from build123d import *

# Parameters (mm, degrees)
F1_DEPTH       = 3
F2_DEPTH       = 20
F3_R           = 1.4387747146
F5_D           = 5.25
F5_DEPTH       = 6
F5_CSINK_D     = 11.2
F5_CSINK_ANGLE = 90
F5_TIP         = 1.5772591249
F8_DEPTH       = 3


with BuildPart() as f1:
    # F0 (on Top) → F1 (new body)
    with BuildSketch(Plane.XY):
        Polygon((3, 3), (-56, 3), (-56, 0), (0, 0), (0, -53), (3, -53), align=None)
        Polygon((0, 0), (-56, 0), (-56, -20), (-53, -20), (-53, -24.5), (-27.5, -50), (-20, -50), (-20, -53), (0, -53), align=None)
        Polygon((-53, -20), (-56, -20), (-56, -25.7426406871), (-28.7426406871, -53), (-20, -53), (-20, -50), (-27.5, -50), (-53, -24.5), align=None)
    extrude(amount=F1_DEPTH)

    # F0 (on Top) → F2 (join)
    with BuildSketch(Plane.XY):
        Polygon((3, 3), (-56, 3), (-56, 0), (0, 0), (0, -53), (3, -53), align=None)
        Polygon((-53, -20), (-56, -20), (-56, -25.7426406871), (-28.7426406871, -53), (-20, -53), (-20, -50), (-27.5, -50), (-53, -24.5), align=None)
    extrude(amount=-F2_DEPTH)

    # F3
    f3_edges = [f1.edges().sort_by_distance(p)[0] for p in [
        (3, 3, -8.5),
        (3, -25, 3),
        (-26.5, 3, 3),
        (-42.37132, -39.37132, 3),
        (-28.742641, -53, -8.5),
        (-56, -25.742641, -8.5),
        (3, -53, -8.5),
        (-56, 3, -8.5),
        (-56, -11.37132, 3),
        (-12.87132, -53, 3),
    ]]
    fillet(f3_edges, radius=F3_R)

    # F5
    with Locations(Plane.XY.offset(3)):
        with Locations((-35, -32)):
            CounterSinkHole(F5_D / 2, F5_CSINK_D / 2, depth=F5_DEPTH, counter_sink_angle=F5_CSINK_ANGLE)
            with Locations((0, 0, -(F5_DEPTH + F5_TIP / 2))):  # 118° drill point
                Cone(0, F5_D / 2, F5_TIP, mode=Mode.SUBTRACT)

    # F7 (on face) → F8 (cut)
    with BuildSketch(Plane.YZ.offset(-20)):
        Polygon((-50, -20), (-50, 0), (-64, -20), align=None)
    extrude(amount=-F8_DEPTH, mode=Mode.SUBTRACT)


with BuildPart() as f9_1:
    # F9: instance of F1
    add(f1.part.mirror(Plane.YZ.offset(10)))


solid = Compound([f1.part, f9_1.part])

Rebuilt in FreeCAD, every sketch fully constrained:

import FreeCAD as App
import Part
import Sketcher
Q = App.Units.Quantity


def edges_at(feature, points):
    """Names of the edges that pass closest to the given points."""
    edges = feature.Shape.Edges
    near = lambda p: min(range(len(edges)), key=lambda i: edges[i].distToShape(Part.Vertex(*p))[0])
    return sorted({f"Edge{near(p) + 1}" for p in points})

doc = App.newDocument("Part")
body = doc.addObject("PartDesign::Body", "Body")

# Sketch on XY plane
sketch1 = body.newObject("Sketcher::SketchObject", "Sketch")
sketch1.AttachmentSupport = (doc.getObject("XY_Plane"), [""])
sketch1.MapMode = "FlatFace"
sketch1.addGeometry([
    Part.LineSegment(App.Vector(3, 3, 0), App.Vector(-56, 3, 0)),  # 0
    Part.LineSegment(App.Vector(-56, 3, 0), App.Vector(-56, -26, 0)),  # 1
    Part.LineSegment(App.Vector(-56, -26, 0), App.Vector(-29, -53, 0)),  # 2
    Part.LineSegment(App.Vector(-29, -53, 0), App.Vector(3, -53, 0)),  # 3
    Part.LineSegment(App.Vector(3, -53, 0), App.Vector(3, 3, 0)),  # 4
], False)
sketch1.addConstraint([
    Sketcher.Constraint("Coincident", 0, 2, 1, 1),
    Sketcher.Constraint("Coincident", 1, 2, 2, 1),
    Sketcher.Constraint("Coincident", 2, 2, 3, 1),
    Sketcher.Constraint("Coincident", 3, 2, 4, 1),
    Sketcher.Constraint("Coincident", 4, 2, 0, 1),
    Sketcher.Constraint("Horizontal", 0),
    Sketcher.Constraint("Vertical", 1),
    Sketcher.Constraint("Horizontal", 3),
    Sketcher.Constraint("Vertical", 4),
    Sketcher.Constraint("DistanceX", 0, 2, 0, 1, Q("59 mm")),
    Sketcher.Constraint("DistanceY", 4, 1, 4, 2, Q("56 mm")),
    Sketcher.Constraint("Angle", 2, Q("-45 deg")),
    Sketcher.Constraint("DistanceX", 0, 2, -1, 1, Q("56 mm")),
    Sketcher.Constraint("DistanceY", -1, 1, 0, 2, Q("3 mm")),
    Sketcher.Constraint("DistanceX", 3, 1, 3, 2, Q("31.742641 mm")),
])
pad1 = body.newObject("PartDesign::Pad", "Pad")
pad1.Profile = sketch1
pad1.Length = 3

# Sketch on XY plane
sketch2 = body.newObject("Sketcher::SketchObject", "Sketch001")
sketch2.AttachmentSupport = (doc.getObject("XY_Plane"), [""])
sketch2.MapMode = "FlatFace"
sketch2.addGeometry([
    Part.LineSegment(App.Vector(3, 3, 0), App.Vector(-56, 3, 0)),  # 0
    Part.LineSegment(App.Vector(-56, 3, 0), App.Vector(-56, 0, 0)),  # 1
    Part.LineSegment(App.Vector(-56, 0, 0), App.Vector(0, 0, 0)),  # 2
    Part.LineSegment(App.Vector(0, 0, 0), App.Vector(0, -53, 0)),  # 3
    Part.LineSegment(App.Vector(0, -53, 0), App.Vector(3, -53, 0)),  # 4
    Part.LineSegment(App.Vector(3, -53, 0), App.Vector(3, 3, 0)),  # 5
    Part.LineSegment(App.Vector(-53, -20, 0), App.Vector(-56, -20, 0)),  # 6
    Part.LineSegment(App.Vector(-56, -20, 0), App.Vector(-56, -25.7, 0)),  # 7
    Part.LineSegment(App.Vector(-56, -25.7, 0), App.Vector(-28.7, -53, 0)),  # 8
    Part.LineSegment(App.Vector(-28.7, -53, 0), App.Vector(-20, -53, 0)),  # 9
    Part.LineSegment(App.Vector(-20, -53, 0), App.Vector(-20, -50, 0)),  # 10
    Part.LineSegment(App.Vector(-20, -50, 0), App.Vector(-27.5, -50, 0)),  # 11
    Part.LineSegment(App.Vector(-27.5, -50, 0), App.Vector(-53, -24.5, 0)),  # 12
    Part.LineSegment(App.Vector(-53, -24.5, 0), App.Vector(-53, -20, 0)),  # 13
], False)
sketch2.addConstraint([
    Sketcher.Constraint("Coincident", 0, 2, 1, 1),
    Sketcher.Constraint("Coincident", 1, 2, 2, 1),
    Sketcher.Constraint("Coincident", 2, 2, 3, 1),
    Sketcher.Constraint("Coincident", 3, 2, 4, 1),
    Sketcher.Constraint("Coincident", 4, 2, 5, 1),
    Sketcher.Constraint("Coincident", 5, 2, 0, 1),
    Sketcher.Constraint("Coincident", 6, 2, 7, 1),
    Sketcher.Constraint("Coincident", 7, 2, 8, 1),
    Sketcher.Constraint("Coincident", 8, 2, 9, 1),
    Sketcher.Constraint("Coincident", 9, 2, 10, 1),
    Sketcher.Constraint("Coincident", 10, 2, 11, 1),
    Sketcher.Constraint("Coincident", 11, 2, 12, 1),
    Sketcher.Constraint("Coincident", 12, 2, 13, 1),
    Sketcher.Constraint("Coincident", 13, 2, 6, 1),
    Sketcher.Constraint("Horizontal", 0),
    Sketcher.Constraint("Vertical", 1),
    Sketcher.Constraint("Horizontal", 2),
    Sketcher.Constraint("Vertical", 3),
    Sketcher.Constraint("Horizontal", 4),
    Sketcher.Constraint("Vertical", 5),
    Sketcher.Constraint("Horizontal", 6),
    Sketcher.Constraint("Vertical", 7),
    Sketcher.Constraint("Horizontal", 9),
    Sketcher.Constraint("Vertical", 10),
    Sketcher.Constraint("Horizontal", 11),
    Sketcher.Constraint("Vertical", 13),
    Sketcher.Constraint("Coincident", 2, 2, -1, 1),
    Sketcher.Constraint("Parallel", 8, 12),
    Sketcher.Constraint("Horizontal", 4, 2, 8, 2),
    Sketcher.Constraint("Vertical", 1, 2, 6, 2),
    Sketcher.Constraint("Equal", 4, 6),
    Sketcher.Constraint("Equal", 6, 1),
    Sketcher.Constraint("Equal", 2, 5),
    Sketcher.Constraint("Equal", 1, 10),
    Sketcher.Constraint("DistanceX", 0, 2, 0, 1, Q("59 mm")),
    Sketcher.Constraint("DistanceX", 2, 1, 2, 2, Q("56 mm")),
    Sketcher.Constraint("Angle", 8, Q("-45 deg")),
    Sketcher.Constraint("DistanceX", 11, 2, 11, 1, Q("7.5 mm")),
    Sketcher.Constraint("DistanceY", 13, 1, 13, 2, Q("4.5 mm")),
    Sketcher.Constraint("DistanceY", 6, 2, -1, 1, Q("20 mm")),
    Sketcher.Constraint("DistanceX", 9, 1, 9, 2, Q("8.742641 mm")),
])
pad2 = body.newObject("PartDesign::Pad", "Pad001")
pad2.Profile = sketch2
pad2.Length = 20
pad2.Reversed = True
doc.recompute()

fillet = body.newObject("PartDesign::Fillet", "Fillet")
fillet.Base = (pad2, edges_at(pad2, [
    (3, 3, -8.5),
    (3, -25, 3),
    (-26.5, 3, 3),
    (-42.371, -39.371, 3),
    (-28.743, -53, -8.5),
    (-56, -25.743, -8.5),
    (3, -53, -8.5),
    (-56, 3, -8.5),
    (-56, -11.371, 3),
    (-12.871, -53, 3),
]))
fillet.Radius = 1.438775

# Sketch on XY plane
sketch3 = body.newObject("Sketcher::SketchObject", "Sketch002")
sketch3.AttachmentSupport = (doc.getObject("XY_Plane"), [""])
sketch3.MapMode = "FlatFace"
sketch3.AttachmentOffset = App.Placement(App.Vector(0, 0, 3), App.Rotation())
sketch3.addGeometry(Part.Circle(App.Vector(-35, -32, 0), App.Vector(0, 0, 1), 2.6), False)
sketch3.addConstraint([
    Sketcher.Constraint("Diameter", 0, Q("5.25 mm")),
    Sketcher.Constraint("DistanceX", 0, 3, -1, 1, Q("35 mm")),
    Sketcher.Constraint("DistanceY", 0, 3, -1, 1, Q("32 mm")),
])
doc.recompute()
hole = body.newObject("PartDesign::Hole", "Hole")
hole.Profile = sketch3
hole.ThreadType = "None"
hole.Diameter = 5.25
hole.DepthType = "Dimension"
hole.Depth = 6
hole.DrillPoint = "Angled"
hole.DrillPointAngle = 118
hole.HoleCutType = "Countersink"
hole.HoleCutDiameter = 11.2
hole.HoleCutCountersinkAngle = 90

# Sketch on YZ plane
sketch4 = body.newObject("Sketcher::SketchObject", "Sketch003")
sketch4.AttachmentSupport = (doc.getObject("YZ_Plane"), [""])
sketch4.MapMode = "FlatFace"
sketch4.AttachmentOffset = App.Placement(App.Vector(0, 0, -20), App.Rotation())
sketch4.addGeometry([
    Part.LineSegment(App.Vector(-50, -20, 0), App.Vector(-50, 0, 0)),
    Part.LineSegment(App.Vector(-50, 0, 0), App.Vector(-64, -20, 0)),
    Part.LineSegment(App.Vector(-64, -20, 0), App.Vector(-50, -20, 0)),
], False)
sketch4.addConstraint([
    Sketcher.Constraint("Coincident", 0, 2, 1, 1),
    Sketcher.Constraint("Coincident", 1, 2, 2, 1),
    Sketcher.Constraint("Coincident", 2, 2, 0, 1),
    Sketcher.Constraint("Vertical", 0),
    Sketcher.Constraint("Horizontal", 2),
    Sketcher.Constraint("PointOnObject", 0, 2, -1),
    Sketcher.Constraint("DistanceX", 2, 1, 2, 2, Q("14 mm")),
    Sketcher.Constraint("DistanceY", 0, 1, 0, 2, Q("20 mm")),
    Sketcher.Constraint("DistanceX", 0, 2, -1, 1, Q("50 mm")),
])
pocket1 = body.newObject("PartDesign::Pocket", "Pocket")
pocket1.Profile = sketch4
pocket1.Length = 3
body2 = doc.addObject("PartDesign::Body", "Body001")
doc.recompute()

mirroring = doc.addObject("Part::Mirroring", "Mirroring")
mirroring.Source = body
mirroring.Base = App.Vector(10, 0, 0)
mirroring.Normal = App.Vector(1, 0, 0)
body2.BaseFeature = mirroring
doc.recompute()
mirroring.Visibility = False

doc.recompute()
